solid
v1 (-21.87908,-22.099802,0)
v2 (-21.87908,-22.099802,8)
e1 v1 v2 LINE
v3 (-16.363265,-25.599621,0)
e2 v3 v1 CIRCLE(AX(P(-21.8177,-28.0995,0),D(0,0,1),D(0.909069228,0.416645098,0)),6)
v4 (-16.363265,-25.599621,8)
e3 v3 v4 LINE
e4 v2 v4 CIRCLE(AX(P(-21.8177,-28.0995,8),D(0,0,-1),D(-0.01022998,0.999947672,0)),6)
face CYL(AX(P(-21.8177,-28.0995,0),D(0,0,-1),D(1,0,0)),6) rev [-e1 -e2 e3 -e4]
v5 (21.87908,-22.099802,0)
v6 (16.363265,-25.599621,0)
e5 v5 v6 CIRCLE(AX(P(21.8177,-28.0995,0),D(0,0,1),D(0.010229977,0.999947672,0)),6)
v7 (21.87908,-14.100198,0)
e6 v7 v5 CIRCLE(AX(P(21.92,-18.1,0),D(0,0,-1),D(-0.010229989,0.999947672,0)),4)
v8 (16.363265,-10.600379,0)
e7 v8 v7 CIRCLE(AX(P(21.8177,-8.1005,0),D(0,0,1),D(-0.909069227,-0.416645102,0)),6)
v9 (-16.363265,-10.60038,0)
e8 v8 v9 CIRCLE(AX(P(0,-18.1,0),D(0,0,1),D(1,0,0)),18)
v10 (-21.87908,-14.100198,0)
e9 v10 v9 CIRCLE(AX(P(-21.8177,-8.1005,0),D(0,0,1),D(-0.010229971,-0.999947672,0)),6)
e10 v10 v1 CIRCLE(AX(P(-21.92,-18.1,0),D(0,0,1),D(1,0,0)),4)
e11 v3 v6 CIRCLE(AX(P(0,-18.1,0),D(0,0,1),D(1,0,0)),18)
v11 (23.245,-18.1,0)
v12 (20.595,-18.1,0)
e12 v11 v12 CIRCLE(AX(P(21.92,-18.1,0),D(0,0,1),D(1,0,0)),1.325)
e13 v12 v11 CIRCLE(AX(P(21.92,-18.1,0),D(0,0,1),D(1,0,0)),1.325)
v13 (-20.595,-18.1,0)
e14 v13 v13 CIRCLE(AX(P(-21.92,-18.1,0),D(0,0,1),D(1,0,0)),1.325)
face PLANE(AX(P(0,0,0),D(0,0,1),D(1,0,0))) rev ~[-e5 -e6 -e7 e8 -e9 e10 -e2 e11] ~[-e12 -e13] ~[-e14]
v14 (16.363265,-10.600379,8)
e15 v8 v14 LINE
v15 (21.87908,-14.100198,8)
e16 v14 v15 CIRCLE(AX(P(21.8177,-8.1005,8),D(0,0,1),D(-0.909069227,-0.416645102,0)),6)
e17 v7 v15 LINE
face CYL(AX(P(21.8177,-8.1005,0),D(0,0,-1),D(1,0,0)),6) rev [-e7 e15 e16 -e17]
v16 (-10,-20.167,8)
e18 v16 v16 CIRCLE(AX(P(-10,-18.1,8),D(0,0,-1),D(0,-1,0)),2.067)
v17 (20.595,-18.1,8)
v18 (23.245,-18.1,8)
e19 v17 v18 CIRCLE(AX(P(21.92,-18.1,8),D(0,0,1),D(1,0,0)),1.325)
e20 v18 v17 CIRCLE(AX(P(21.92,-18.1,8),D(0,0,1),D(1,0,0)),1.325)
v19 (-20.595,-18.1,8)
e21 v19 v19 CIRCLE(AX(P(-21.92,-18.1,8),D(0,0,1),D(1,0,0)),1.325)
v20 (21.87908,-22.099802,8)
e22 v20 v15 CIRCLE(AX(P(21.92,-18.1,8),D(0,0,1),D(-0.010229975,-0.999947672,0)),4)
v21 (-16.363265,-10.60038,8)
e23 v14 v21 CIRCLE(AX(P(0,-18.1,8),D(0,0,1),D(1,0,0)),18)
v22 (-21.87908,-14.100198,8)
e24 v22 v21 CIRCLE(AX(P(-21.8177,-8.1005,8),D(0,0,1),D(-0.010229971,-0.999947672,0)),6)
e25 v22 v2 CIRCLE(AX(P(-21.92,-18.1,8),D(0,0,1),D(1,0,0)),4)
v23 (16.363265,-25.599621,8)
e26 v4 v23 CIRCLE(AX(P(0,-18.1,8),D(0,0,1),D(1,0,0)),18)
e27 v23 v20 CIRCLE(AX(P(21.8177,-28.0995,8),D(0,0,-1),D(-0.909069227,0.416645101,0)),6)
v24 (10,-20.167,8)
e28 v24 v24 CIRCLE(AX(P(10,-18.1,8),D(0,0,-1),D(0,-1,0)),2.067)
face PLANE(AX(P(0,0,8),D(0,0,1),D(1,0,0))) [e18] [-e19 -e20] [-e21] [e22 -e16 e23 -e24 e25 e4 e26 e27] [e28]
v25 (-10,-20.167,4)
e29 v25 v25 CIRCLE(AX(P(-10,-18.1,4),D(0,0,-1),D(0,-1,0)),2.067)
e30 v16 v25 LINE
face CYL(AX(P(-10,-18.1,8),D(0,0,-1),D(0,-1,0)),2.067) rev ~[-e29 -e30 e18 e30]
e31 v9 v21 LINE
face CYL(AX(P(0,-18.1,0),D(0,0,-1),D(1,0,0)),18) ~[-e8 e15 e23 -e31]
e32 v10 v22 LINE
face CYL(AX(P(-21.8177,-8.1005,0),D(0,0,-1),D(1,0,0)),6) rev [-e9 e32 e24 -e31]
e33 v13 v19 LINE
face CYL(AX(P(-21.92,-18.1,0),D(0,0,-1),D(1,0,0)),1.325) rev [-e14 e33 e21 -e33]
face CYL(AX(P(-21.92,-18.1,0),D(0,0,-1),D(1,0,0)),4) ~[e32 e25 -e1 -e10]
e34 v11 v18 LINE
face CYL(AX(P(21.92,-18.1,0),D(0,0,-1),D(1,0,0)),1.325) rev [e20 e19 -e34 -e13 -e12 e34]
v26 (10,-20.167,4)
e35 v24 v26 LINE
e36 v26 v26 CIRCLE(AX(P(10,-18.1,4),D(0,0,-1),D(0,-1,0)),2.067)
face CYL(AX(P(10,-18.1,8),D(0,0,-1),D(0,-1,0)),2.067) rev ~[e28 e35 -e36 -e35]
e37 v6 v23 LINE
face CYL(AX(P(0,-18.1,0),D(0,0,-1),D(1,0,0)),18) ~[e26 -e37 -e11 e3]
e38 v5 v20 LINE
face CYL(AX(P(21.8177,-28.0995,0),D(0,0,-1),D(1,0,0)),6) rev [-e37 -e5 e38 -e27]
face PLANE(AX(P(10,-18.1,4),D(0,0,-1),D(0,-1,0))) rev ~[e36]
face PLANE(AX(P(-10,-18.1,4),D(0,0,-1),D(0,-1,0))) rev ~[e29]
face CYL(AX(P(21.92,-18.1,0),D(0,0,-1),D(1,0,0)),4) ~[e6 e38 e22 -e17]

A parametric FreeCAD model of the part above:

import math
import FreeCAD as App
import Part
import Sketcher
Q = App.Units.Quantity

doc = App.newDocument("Part")
params = doc.addObject("Spreadsheet::Sheet", "Params")
for row, (alias, value) in enumerate([
    ("sketch1_radius", "18 mm"),
    ("sketch1_radius2", "6 mm"),
    ("sketch1_radius3", "4 mm"),
    ("sketch1_radius4", "6 mm"),
    ("sketch1_radius5", "18 mm"),
    ("pad1_length", "8 mm"),
    ("hole_diameter", "4.134 mm"),
    ("hole_depth", "4 mm"),
], start=1):
    params.set(f"A{row}", alias)
    params.set(f"B{row}", "=" + value)
    params.setAlias(f"B{row}", alias)

body = doc.addObject("PartDesign::Body", "Body")

# Sketch on XY plane
sketch1 = body.newObject("Sketcher::SketchObject", "Sketch")
sketch1.AttachmentSupport = (doc.getObject("XY_Plane"), [""])
sketch1.MapMode = "FlatFace"
sketch1.addGeometry([
    Part.ArcOfCircle(Part.Circle(App.Vector(0, -18.1, 0), App.Vector(0, 0, 1), 18), math.radians(24.622959), math.radians(155.377041)),  # 0
    Part.ArcOfCircle(Part.Circle(App.Vector(-21.8177, -8.1005, 0), App.Vector(0, 0, 1), 6), math.radians(-90.586144), math.radians(-24.62296)),  # 1
    Part.ArcOfCircle(Part.Circle(App.Vector(-21.92, -18.1, 0), App.Vector(0, 0, 1), 4), math.radians(89.413855), math.radians(270.586144)),  # 2
    Part.ArcOfCircle(Part.Circle(App.Vector(-21.8177, -28.0995, 0), App.Vector(0, 0, 1), 6), math.radians(24.622959), math.radians(90.586145)),  # 3
    Part.ArcOfCircle(Part.Circle(App.Vector(0, -18.1, 0), App.Vector(0, 0, 1), 18), math.radians(-155.377041), math.radians(-24.622959)),  # 4
    Part.ArcOfCircle(Part.Circle(App.Vector(21.8177, -28.0995, 0), App.Vector(0, 0, 1), 6), math.radians(89.413855), math.radians(155.377041)),  # 5
    Part.ArcOfCircle(Part.Circle(App.Vector(21.92, -18.1, 0), App.Vector(0, 0, 1), 4), math.radians(-90.586145), math.radians(90.586145)),  # 6
    Part.ArcOfCircle(Part.Circle(App.Vector(21.8177, -8.1005, 0), App.Vector(0, 0, 1), 6), math.radians(-155.377041), math.radians(-89.413856)),  # 7
    Part.Circle(App.Vector(-21.92, -18.1, 0), App.Vector(0, 0, 1), 1.325),  # 8
    Part.Circle(App.Vector(21.92, -18.1, 0), App.Vector(0, 0, 1), 1.325),  # 9
], False)
sketch1.addConstraint([
    Sketcher.Constraint("Coincident", 0, 2, 1, 2),
    Sketcher.Constraint("Coincident", 1, 1, 2, 1),
    Sketcher.Constraint("Coincident", 2, 2, 3, 2),
    Sketcher.Constraint("Coincident", 3, 1, 4, 1),
    Sketcher.Constraint("Coincident", 4, 2, 5, 2),
    Sketcher.Constraint("Coincident", 5, 1, 6, 1),
    Sketcher.Constraint("Coincident", 6, 2, 7, 2),
    Sketcher.Constraint("Coincident", 7, 1, 0, 1),
    Sketcher.Constraint("Coincident", 4, 3, 0, 3),
    Sketcher.Constraint("Coincident", 8, 3, 2, 3),
    Sketcher.Constraint("Coincident", 9, 3, 6, 3),
    Sketcher.Constraint("PointOnObject", 0, 3, -2),
    Sketcher.Constraint("Radius", 0, Q("18 mm")),
    Sketcher.Constraint("Radius", 1, Q("6 mm")),
    Sketcher.Constraint("Radius", 2, Q("4 mm")),
    Sketcher.Constraint("Radius", 3, Q("6 mm")),
    Sketcher.Constraint("Radius", 4, Q("18 mm")),
    Sketcher.Constraint("Radius", 5, Q("6 mm")),
    Sketcher.Constraint("Radius", 6, Q("4 mm")),
    Sketcher.Constraint("Radius", 7, Q("6 mm")),
    Sketcher.Constraint("Diameter", 8, Q("2.65 mm")),
    Sketcher.Constraint("Diameter", 9, Q("2.65 mm")),
    Sketcher.Constraint("DistanceY", 0, 3, -1, 1, Q("18.1 mm")),
    Sketcher.Constraint("DistanceY", 2, 3, -1, 1, Q("18.1 mm")),
    Sketcher.Constraint("DistanceY", 6, 3, -1, 1, Q("18.1 mm")),
    Sketcher.Constraint("DistanceY", 0, 2, 1, 3, Q("2.5 mm")),
    Sketcher.Constraint("DistanceY", 2, 2, 1, 1, Q("7.9996 mm")),
    Sketcher.Constraint("DistanceY", 5, 3, 4, 2, Q("2.5 mm")),
    Sketcher.Constraint("DistanceY", 5, 1, 6, 2, Q("7.9996 mm")),
    Sketcher.Constraint("DistanceX", 2, 3, -1, 1, Q("21.92 mm")),
    Sketcher.Constraint("DistanceX", -1, 1, 6, 3, Q("21.92 mm")),
    Sketcher.Constraint("DistanceX", 1, 1, -1, 1, Q("21.879 mm")),
    Sketcher.Constraint("DistanceX", -1, 1, 5, 1, Q("21.879 mm")),
    Sketcher.Constraint("DistanceX", 3, 1, -1, 1, Q("16.3633 mm")),
    Sketcher.Constraint("DistanceX", -1, 1, 7, 1, Q("16.3633 mm")),
])
sketch1.setExpression("Constraints[12]", "Params.sketch1_radius")
sketch1.setExpression("Constraints[13]", "Params.sketch1_radius2")
sketch1.setExpression("Constraints[14]", "Params.sketch1_radius3")
sketch1.setExpression("Constraints[15]", "Params.sketch1_radius4")
sketch1.setExpression("Constraints[16]", "Params.sketch1_radius5")
pad1 = body.newObject("PartDesign::Pad", "Pad")
pad1.Profile = sketch1
pad1.setExpression("Length", "Params.pad1_length")

# Sketch on XY plane
sketch2 = body.newObject("Sketcher::SketchObject", "Sketch001")
sketch2.AttachmentSupport = (doc.getObject("XY_Plane"), [""])
sketch2.MapMode = "FlatFace"
sketch2.AttachmentOffset = App.Placement(App.Vector(0, 0, 8), App.Rotation())
sketch2.addGeometry([
    Part.Circle(App.Vector(10, -18.1, 0), App.Vector(0, 0, 1), 2.067),
    Part.Circle(App.Vector(-10, -18.1, 0), App.Vector(0, 0, 1), 2.067),
], False)
sketch2.addConstraint([
    Sketcher.Constraint("Equal", 0, 1),
    Sketcher.Constraint("Symmetric", 0, 3, 1, 3, -2),
    Sketcher.Constraint("Diameter", 0, Q("4.134 mm")),
    Sketcher.Constraint("DistanceX", -1, 1, 0, 3, Q("10 mm")),
    Sketcher.Constraint("DistanceY", 0, 3, -1, 1, Q("18.1 mm")),
])
doc.recompute()
hole = body.newObject("PartDesign::Hole", "Hole")
hole.Profile = sketch2
hole.ThreadType = "None"
hole.setExpression("Diameter", "Params.hole_diameter")
hole.DepthType = "Dimension"
hole.setExpression("Depth", "Params.hole_depth")
hole.DrillPoint = "Flat"

doc.recompute()
